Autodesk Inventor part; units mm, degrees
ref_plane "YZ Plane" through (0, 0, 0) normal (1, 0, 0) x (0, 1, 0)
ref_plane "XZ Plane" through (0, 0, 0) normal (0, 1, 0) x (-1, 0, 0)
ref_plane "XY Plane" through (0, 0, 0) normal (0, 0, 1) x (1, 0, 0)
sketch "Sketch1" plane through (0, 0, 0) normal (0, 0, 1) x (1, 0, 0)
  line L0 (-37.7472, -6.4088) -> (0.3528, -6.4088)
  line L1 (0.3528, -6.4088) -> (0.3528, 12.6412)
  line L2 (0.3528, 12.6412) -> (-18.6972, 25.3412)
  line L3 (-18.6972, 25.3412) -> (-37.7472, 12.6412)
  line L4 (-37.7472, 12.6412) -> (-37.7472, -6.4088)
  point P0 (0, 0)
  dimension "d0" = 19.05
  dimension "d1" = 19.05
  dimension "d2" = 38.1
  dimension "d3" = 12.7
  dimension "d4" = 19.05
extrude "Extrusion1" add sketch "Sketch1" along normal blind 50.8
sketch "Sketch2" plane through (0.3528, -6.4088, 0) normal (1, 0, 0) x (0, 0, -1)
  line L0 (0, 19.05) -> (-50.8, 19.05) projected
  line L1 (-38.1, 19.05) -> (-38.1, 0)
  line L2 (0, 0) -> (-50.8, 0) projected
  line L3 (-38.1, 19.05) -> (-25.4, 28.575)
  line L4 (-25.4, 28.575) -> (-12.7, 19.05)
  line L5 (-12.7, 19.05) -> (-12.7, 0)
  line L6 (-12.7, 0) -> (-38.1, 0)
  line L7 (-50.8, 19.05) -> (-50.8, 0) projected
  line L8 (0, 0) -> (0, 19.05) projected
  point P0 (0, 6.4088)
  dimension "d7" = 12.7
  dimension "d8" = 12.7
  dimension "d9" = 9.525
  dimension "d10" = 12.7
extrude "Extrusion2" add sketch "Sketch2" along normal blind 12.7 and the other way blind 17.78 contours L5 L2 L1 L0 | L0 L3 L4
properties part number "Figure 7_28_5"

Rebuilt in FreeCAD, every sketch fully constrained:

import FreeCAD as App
import Part
import Sketcher
Q = App.Units.Quantity

doc = App.newDocument("Part")
body = doc.addObject("PartDesign::Body", "Body")

sketch1 = doc.addObject("Sketcher::SketchObject", "Sketch")
body.addObject(sketch1)
sketch1.AttachmentSupport = (doc.XY_Plane, [""])
sketch1.MapMode = "FlatFace"
sketch1.addGeometry(Part.LineSegment(App.Vector(-37.7472, 12.6412, 0), App.Vector(-37.7472, -6.4088, 0)), False)
sketch1.addGeometry(Part.LineSegment(App.Vector(-37.7472, -6.4088, 0), App.Vector(0.3528, -6.4088, 0)), False)
sketch1.addGeometry(Part.LineSegment(App.Vector(0.3528, -6.4088, 0), App.Vector(0.3528, 12.6412, 0)), False)
sketch1.addGeometry(Part.LineSegment(App.Vector(0.3528, 12.6412, 0), App.Vector(-18.6972, 25.3412, 0)), False)
sketch1.addGeometry(Part.LineSegment(App.Vector(-18.6972, 25.3412, 0), App.Vector(-37.7472, 12.6412, 0)), False)
sketch1.addConstraint(Sketcher.Constraint("Coincident", 0, 2, 1, 1))
sketch1.addConstraint(Sketcher.Constraint("Coincident", 1, 2, 2, 1))
sketch1.addConstraint(Sketcher.Constraint("Coincident", 2, 2, 3, 1))
sketch1.addConstraint(Sketcher.Constraint("Coincident", 3, 2, 4, 1))
sketch1.addConstraint(Sketcher.Constraint("Coincident", 4, 2, 0, 1))
sketch1.addConstraint(Sketcher.Constraint("Vertical", 0))
sketch1.addConstraint(Sketcher.Constraint("Horizontal", 1))
sketch1.addConstraint(Sketcher.Constraint("Vertical", 2))
sketch1.addConstraint(Sketcher.Constraint("Horizontal", 2, 2, 4, 2))
sketch1.addConstraint(Sketcher.Constraint("Equal", 3, 4))
sketch1.addConstraint(Sketcher.Constraint("DistanceX", 1, 1, 1, 2, Q("1.5 in")))
sketch1.addConstraint(Sketcher.Constraint("DistanceY", 0, 2, 0, 1, Q("0.75 in")))
sketch1.addConstraint(Sketcher.Constraint("DistanceY", 2, 2, 3, 2, Q("0.5 in")))
sketch1.addConstraint(Sketcher.Constraint("DistanceX", 0, 2, -1, 1, Q("1.4861 in")))
sketch1.addConstraint(Sketcher.Constraint("DistanceY", 0, 2, -1, 1, Q("6.4088 mm")))
pad1 = doc.addObject("PartDesign::Pad", "Pad")
body.addObject(pad1)
pad1.Profile = sketch1
pad1.Length = Q("2 in")

sketch2 = doc.addObject("Sketcher::SketchObject", "Sketch001")
body.addObject(sketch2)
sketch2.AttachmentSupport = (doc.YZ_Plane, [""])
sketch2.MapMode = "FlatFace"
sketch2.AttachmentOffset = App.Placement(App.Vector(0, 0, 0.0138898 * 25.4), App.Rotation())
sketch2.addGeometry(Part.LineSegment(App.Vector(-6.4088, 12.7, 0), App.Vector(12.6412, 12.7, 0)), False)
sketch2.addGeometry(Part.LineSegment(App.Vector(12.6412, 12.7, 0), App.Vector(22.1662, 25.4, 0)), False)
sketch2.addGeometry(Part.LineSegment(App.Vector(22.1662, 25.4, 0), App.Vector(12.6412, 38.1, 0)), False)
sketch2.addGeometry(Part.LineSegment(App.Vector(12.6412, 38.1, 0), App.Vector(-6.4088, 38.1, 0)), False)
sketch2.addGeometry(Part.LineSegment(App.Vector(-6.4088, 38.1, 0), App.Vector(-6.4088, 12.7, 0)), False)
sketch2.addConstraint(Sketcher.Constraint("Coincident", 0, 2, 1, 1))
sketch2.addConstraint(Sketcher.Constraint("Coincident", 1, 2, 2, 1))
sketch2.addConstraint(Sketcher.Constraint("Coincident", 2, 2, 3, 1))
sketch2.addConstraint(Sketcher.Constraint("Coincident", 3, 2, 4, 1))
sketch2.addConstraint(Sketcher.Constraint("Coincident", 4, 2, 0, 1))
sketch2.addConstraint(Sketcher.Constraint("Horizontal", 0))
sketch2.addConstraint(Sketcher.Constraint("Horizontal", 3))
sketch2.addConstraint(Sketcher.Constraint("Vertical", 4))
sketch2.addConstraint(Sketcher.Constraint("Vertical", 0, 2, 2, 2))
sketch2.addConstraint(Sketcher.Constraint("Equal", 1, 2))
sketch2.addConstraint(Sketcher.Constraint("DistanceY", -1, 1, 0, 2, Q("0.5 in")))
sketch2.addConstraint(Sketcher.Constraint("DistanceY", 0, 2, 1, 2, Q("0.5 in")))
sketch2.addConstraint(Sketcher.Constraint("DistanceX", 0, 2, 1, 2, Q("0.375 in")))
sketch2.addConstraint(Sketcher.Constraint("DistanceX", 0, 1, 0, 2, Q("0.75 in")))
sketch2.addConstraint(Sketcher.Constraint("DistanceX", -1, 1, 0, 2, Q("12.6412 mm")))
pad2 = doc.addObject("PartDesign::Pad", "Pad001")
body.addObject(pad2)
pad2.Profile = sketch2
pad2.Type = "TwoLengths"
pad2.Length = Q("0.5 in")
pad2.Length2 = Q("0.7 in")

doc.recompute()
